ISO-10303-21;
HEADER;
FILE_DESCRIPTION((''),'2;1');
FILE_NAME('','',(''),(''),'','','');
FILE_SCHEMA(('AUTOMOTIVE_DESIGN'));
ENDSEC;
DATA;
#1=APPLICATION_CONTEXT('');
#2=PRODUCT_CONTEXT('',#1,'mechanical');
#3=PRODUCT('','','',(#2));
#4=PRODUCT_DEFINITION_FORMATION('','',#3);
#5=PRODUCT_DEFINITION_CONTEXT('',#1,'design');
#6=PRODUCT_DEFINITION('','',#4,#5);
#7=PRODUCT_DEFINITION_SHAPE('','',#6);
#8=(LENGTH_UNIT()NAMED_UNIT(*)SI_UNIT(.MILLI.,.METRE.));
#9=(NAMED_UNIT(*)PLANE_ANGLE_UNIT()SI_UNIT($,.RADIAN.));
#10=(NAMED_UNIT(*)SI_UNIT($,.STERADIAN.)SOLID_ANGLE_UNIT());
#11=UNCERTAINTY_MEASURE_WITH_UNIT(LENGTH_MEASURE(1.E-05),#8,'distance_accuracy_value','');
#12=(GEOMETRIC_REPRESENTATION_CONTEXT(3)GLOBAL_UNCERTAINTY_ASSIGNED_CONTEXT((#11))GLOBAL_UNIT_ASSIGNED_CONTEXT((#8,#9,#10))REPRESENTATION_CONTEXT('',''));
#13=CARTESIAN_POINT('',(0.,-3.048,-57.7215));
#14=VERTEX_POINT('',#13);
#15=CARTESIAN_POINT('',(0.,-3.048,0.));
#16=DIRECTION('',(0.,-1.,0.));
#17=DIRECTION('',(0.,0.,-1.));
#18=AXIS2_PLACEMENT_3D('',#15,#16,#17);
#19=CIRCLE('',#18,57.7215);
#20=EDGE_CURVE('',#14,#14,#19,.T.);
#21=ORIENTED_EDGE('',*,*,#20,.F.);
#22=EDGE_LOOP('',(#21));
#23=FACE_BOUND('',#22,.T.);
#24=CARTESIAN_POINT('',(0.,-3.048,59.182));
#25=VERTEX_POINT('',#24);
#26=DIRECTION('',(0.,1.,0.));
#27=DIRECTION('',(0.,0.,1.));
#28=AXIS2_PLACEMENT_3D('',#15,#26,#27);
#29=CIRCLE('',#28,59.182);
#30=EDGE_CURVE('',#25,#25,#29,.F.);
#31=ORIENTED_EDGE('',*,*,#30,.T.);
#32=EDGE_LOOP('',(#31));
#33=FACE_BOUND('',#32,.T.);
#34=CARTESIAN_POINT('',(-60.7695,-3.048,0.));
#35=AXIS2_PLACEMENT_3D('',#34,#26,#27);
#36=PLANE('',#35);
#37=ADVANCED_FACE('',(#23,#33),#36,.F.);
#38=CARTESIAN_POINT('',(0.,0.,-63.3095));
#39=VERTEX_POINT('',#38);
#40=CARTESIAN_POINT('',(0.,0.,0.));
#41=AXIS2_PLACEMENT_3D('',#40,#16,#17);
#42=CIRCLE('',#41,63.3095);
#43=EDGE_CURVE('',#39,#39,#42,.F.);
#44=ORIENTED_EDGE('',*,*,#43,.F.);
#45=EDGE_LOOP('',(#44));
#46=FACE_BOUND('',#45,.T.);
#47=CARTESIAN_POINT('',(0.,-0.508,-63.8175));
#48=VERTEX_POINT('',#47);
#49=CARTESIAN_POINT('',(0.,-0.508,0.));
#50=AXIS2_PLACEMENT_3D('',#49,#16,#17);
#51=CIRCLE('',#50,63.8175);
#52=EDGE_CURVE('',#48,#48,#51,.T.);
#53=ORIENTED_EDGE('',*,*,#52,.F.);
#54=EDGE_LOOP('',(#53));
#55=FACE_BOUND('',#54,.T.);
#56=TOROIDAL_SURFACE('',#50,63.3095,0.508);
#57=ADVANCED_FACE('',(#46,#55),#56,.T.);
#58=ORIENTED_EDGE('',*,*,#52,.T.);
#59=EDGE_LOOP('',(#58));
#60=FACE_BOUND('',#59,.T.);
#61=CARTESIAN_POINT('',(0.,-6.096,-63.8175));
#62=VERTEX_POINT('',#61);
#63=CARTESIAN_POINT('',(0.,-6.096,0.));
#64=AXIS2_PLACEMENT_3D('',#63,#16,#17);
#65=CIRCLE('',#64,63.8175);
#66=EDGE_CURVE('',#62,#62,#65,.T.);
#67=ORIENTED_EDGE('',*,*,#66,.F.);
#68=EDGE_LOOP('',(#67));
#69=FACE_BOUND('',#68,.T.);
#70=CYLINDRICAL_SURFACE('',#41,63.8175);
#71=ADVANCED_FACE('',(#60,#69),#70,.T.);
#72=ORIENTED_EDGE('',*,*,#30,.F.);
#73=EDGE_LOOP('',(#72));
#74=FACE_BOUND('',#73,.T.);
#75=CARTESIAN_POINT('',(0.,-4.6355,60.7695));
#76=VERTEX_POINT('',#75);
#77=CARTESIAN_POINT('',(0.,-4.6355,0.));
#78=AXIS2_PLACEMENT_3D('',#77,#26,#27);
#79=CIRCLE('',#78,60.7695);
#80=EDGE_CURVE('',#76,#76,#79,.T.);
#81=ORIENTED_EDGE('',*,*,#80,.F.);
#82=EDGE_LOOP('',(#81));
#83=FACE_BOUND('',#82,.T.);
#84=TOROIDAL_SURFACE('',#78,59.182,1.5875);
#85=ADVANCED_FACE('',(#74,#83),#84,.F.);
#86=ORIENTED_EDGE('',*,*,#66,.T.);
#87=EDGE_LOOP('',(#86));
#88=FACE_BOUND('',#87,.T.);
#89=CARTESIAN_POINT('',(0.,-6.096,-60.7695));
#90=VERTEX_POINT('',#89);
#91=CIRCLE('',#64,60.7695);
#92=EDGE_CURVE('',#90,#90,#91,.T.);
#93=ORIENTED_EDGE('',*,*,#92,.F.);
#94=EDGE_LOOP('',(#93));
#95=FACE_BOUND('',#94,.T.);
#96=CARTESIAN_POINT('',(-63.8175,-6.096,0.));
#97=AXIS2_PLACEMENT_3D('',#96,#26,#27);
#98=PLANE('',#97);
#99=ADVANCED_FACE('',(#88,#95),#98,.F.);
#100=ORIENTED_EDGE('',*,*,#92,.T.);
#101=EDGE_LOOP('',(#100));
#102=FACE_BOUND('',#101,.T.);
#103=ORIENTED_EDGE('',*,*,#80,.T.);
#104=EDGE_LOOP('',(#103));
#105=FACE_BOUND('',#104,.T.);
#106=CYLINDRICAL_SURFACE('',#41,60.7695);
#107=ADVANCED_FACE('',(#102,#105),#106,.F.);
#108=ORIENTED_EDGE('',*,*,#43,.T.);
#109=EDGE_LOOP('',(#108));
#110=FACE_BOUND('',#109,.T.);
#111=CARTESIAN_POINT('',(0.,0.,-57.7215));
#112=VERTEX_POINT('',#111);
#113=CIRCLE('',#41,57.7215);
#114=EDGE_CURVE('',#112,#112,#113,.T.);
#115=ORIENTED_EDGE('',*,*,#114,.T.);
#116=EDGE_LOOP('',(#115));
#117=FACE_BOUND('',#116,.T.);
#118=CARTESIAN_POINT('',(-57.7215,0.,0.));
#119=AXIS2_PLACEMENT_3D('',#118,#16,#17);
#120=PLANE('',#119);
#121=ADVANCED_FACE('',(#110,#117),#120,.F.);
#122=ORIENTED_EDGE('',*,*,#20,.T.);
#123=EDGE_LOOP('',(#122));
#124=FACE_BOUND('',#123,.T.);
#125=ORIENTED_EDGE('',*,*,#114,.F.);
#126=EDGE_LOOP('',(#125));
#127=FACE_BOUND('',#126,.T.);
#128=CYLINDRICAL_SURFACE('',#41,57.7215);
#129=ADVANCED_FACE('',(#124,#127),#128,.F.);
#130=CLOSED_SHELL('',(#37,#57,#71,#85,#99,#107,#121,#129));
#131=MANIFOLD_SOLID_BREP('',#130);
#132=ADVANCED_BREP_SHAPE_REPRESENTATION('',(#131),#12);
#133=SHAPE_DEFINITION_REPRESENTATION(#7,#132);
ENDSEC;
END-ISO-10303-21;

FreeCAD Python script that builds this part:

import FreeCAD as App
import Part
import Sketcher

V = App.Vector
Q = App.Units.Quantity


def edges_at(feature, points):
    """Names of the edges that pass closest to the given points."""
    edges = feature.Shape.Edges
    near = lambda p: min(range(len(edges)), key=lambda i: edges[i].distToShape(Part.Vertex(*p))[0])
    return sorted({f"Edge{near(p) + 1}" for p in points})

doc = App.newDocument("Part")
body = doc.addObject("PartDesign::Body", "Body")

# Sketch on XY plane
sketch1 = body.newObject("Sketcher::SketchObject", "Sketch")
sketch1.AttachmentSupport = (doc.getObject("XY_Plane"), [""])
sketch1.MapMode = "FlatFace"
sketch1.addGeometry(Part.LineSegment(V(-57.7, 0, 0), V(-63.8, 0, 0)), False)
sketch1.addGeometry(Part.LineSegment(V(-63.8, 0, 0), V(-63.8, -6.1, 0)), False)
sketch1.addGeometry(Part.LineSegment(V(-63.8, -6.1, 0), V(-60.8, -6.1, 0)), False)
sketch1.addGeometry(Part.LineSegment(V(-60.8, -6.1, 0), V(-60.8, -3, 0)), False)
sketch1.addGeometry(Part.LineSegment(V(-60.8, -3, 0), V(-57.7, -3, 0)), False)
sketch1.addGeometry(Part.LineSegment(V(-57.7, -3, 0), V(-57.7, 0, 0)), False)
sketch1.addConstraint(Sketcher.Constraint("Coincident", 0, 2, 1, 1))
sketch1.addConstraint(Sketcher.Constraint("Coincident", 1, 2, 2, 1))
sketch1.addConstraint(Sketcher.Constraint("Coincident", 2, 2, 3, 1))
sketch1.addConstraint(Sketcher.Constraint("Coincident", 3, 2, 4, 1))
sketch1.addConstraint(Sketcher.Constraint("Coincident", 4, 2, 5, 1))
sketch1.addConstraint(Sketcher.Constraint("Coincident", 5, 2, 0, 1))
sketch1.addConstraint(Sketcher.Constraint("Horizontal", 0))
sketch1.addConstraint(Sketcher.Constraint("Vertical", 1))
sketch1.addConstraint(Sketcher.Constraint("Horizontal", 2))
sketch1.addConstraint(Sketcher.Constraint("Vertical", 3))
sketch1.addConstraint(Sketcher.Constraint("Horizontal", 4))
sketch1.addConstraint(Sketcher.Constraint("Vertical", 5))
sketch1.addConstraint(Sketcher.Constraint("PointOnObject", 0, 2, -1))
sketch1.addConstraint(Sketcher.Constraint("Equal", 2, 4))
sketch1.addConstraint(Sketcher.Constraint("Equal", 0, 1))
sketch1.addConstraint(Sketcher.Constraint("Equal", 4, 3))
sketch1.addConstraint(Sketcher.Constraint("DistanceX", 0, 2, 0, 1, Q("0.24 in")))
sketch1.addConstraint(Sketcher.Constraint("DistanceX", 0, 2, -1, 1, Q("2.5125 in")))
revolution = body.newObject("PartDesign::Revolution", "Revolution")
revolution.Profile = sketch1
revolution.ReferenceAxis = (sketch1, ["V_Axis"])
revolution.Angle = 360
doc.recompute()

fillet = body.newObject("PartDesign::Fillet", "Fillet")
fillet.Base = (revolution, edges_at(revolution, [(0, -3.048, 60.77)]))
fillet.Radius = Q("0.0625 in")
doc.recompute()

fillet2 = body.newObject("PartDesign::Fillet", "Fillet001")
fillet2.Base = (fillet, edges_at(fillet, [(0, 0, 63.818)]))
fillet2.Radius = Q("0.02 in")

doc.recompute()
